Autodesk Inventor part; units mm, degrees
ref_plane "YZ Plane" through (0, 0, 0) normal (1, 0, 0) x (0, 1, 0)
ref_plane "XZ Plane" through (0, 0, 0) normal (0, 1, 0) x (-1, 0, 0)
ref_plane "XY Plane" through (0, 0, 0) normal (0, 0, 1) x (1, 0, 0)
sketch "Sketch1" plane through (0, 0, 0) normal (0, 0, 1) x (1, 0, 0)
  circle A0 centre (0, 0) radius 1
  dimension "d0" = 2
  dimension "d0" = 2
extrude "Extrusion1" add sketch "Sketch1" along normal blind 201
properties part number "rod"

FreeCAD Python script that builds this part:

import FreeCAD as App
import Part
import Sketcher
Q = App.Units.Quantity

doc = App.newDocument("Part")
body = doc.addObject("PartDesign::Body", "Body")

sketch1 = body.newObject("Sketcher::SketchObject", "Sketch")
sketch1.AttachmentSupport = (doc.getObject("XY_Plane"), [""])
sketch1.MapMode = "FlatFace"
sketch1.addGeometry(Part.Circle(App.Vector(0, 0, 0), App.Vector(0, 0, 1), 1), False)
sketch1.addConstraint([
    Sketcher.Constraint("Coincident", 0, 3, -1, 1),
    Sketcher.Constraint("Diameter", 0, Q("2 mm")),
])
pad1 = body.newObject("PartDesign::Pad", "Pad")
pad1.Profile = sketch1
pad1.Length = 201

doc.recompute()
